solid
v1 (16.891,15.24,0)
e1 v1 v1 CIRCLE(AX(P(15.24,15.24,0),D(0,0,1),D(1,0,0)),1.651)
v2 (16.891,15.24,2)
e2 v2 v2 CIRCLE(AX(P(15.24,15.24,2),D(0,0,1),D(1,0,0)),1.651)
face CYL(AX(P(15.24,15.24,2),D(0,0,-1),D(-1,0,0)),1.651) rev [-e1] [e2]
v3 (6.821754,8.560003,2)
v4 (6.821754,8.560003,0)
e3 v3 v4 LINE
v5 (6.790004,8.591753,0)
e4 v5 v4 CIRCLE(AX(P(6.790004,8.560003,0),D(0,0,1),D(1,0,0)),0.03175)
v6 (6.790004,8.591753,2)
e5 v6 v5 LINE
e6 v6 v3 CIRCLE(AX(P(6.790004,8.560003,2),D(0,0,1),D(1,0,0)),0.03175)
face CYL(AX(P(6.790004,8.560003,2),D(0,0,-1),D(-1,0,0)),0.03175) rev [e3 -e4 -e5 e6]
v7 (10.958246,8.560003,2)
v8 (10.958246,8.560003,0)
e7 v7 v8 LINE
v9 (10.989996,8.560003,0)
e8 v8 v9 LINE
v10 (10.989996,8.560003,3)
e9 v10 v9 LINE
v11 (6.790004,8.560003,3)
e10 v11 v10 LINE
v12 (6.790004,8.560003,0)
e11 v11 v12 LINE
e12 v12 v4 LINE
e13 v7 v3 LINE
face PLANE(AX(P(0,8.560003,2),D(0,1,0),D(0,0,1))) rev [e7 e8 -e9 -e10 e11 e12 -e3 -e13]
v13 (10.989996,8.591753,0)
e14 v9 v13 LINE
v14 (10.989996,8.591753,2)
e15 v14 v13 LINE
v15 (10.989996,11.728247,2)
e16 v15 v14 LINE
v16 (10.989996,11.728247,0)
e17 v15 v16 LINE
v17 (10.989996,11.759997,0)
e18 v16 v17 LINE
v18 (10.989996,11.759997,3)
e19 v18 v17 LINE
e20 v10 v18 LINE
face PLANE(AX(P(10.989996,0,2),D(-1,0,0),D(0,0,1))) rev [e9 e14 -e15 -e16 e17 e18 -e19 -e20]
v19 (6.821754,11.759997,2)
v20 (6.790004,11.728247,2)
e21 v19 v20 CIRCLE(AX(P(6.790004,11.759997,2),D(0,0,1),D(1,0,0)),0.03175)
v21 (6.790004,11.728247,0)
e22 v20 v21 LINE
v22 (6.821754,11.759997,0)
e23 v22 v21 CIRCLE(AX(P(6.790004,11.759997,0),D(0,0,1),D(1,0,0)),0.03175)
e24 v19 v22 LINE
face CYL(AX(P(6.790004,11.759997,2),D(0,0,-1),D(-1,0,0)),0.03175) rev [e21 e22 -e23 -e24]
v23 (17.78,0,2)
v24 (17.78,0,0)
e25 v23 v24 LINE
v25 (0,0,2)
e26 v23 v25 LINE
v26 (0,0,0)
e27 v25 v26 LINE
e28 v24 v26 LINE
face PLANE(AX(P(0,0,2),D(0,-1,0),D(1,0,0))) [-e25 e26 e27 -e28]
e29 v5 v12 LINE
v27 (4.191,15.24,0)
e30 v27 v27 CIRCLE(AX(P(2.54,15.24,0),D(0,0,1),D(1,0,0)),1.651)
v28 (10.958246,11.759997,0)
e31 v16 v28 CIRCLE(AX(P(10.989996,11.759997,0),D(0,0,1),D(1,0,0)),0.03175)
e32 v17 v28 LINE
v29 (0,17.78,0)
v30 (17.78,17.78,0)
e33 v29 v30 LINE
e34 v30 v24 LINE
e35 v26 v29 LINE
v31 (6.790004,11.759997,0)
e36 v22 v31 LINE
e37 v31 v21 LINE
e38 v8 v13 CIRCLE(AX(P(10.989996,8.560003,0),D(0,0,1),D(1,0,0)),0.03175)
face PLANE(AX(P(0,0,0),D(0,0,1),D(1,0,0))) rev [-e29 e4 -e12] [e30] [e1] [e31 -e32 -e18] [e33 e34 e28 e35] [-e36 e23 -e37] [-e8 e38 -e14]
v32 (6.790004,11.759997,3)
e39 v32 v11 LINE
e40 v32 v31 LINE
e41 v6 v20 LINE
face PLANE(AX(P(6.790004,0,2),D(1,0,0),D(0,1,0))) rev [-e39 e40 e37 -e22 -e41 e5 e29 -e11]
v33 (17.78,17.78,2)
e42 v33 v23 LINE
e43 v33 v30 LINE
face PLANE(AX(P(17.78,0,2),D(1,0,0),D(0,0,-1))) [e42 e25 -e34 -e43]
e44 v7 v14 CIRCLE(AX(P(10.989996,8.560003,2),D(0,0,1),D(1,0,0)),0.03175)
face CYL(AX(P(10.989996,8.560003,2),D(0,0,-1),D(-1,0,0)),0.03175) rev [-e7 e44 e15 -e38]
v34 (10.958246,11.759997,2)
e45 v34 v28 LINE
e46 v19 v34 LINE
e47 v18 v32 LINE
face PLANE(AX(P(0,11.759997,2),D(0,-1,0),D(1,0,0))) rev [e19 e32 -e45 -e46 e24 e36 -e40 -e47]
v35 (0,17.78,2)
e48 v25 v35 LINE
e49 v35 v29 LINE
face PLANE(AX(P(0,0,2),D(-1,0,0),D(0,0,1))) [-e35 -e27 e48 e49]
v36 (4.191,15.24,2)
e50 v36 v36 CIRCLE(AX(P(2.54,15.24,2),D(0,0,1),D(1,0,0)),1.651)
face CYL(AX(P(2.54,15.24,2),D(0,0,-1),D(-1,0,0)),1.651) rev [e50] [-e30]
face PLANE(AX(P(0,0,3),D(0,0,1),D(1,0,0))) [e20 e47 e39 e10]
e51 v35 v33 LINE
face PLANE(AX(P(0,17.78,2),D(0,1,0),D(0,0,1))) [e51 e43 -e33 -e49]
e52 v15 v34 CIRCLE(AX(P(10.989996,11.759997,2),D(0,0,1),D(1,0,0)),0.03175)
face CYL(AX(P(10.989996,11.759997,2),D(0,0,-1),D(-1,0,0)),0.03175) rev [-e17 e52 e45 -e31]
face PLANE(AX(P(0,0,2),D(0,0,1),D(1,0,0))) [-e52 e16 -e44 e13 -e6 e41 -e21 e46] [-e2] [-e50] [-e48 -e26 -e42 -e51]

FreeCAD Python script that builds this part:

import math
import FreeCAD as App
import Part
import Sketcher

doc = App.newDocument("Part")
body = doc.addObject("PartDesign::Body", "Body")

# Sketch on XY plane
sketch1 = body.newObject("Sketcher::SketchObject", "Sketch")
sketch1.AttachmentSupport = (doc.getObject("XY_Plane"), [""])
sketch1.MapMode = "FlatFace"
sketch1.addGeometry(Part.LineSegment(App.Vector(0, 0, 0), App.Vector(17.78, 0, 0)), False)
sketch1.addGeometry(Part.LineSegment(App.Vector(17.78, 0, 0), App.Vector(17.78, 17.78, 0)), False)
sketch1.addGeometry(Part.LineSegment(App.Vector(17.78, 17.78, 0), App.Vector(0, 17.78, 0)), False)
sketch1.addGeometry(Part.LineSegment(App.Vector(0, 17.78, 0), App.Vector(0, 0, 0)), False)
sketch1.addGeometry(Part.ArcOfCircle(Part.Circle(App.Vector(10.99, 8.56, 0), App.Vector(0, 0, 1), 0.032), math.radians(-180), math.radians(-90)), False)
sketch1.addGeometry(Part.LineSegment(App.Vector(10.958, 8.56, 0), App.Vector(10.99, 8.56, 0)), False)
sketch1.addGeometry(Part.LineSegment(App.Vector(10.99, 8.56, 0), App.Vector(10.99, 8.592, 0)), False)
sketch1.addGeometry(Part.ArcOfCircle(Part.Circle(App.Vector(10.99, 8.56, 0), App.Vector(0, 0, 1), 0.032), math.radians(0), math.radians(90)), False)
sketch1.addGeometry(Part.ArcOfCircle(Part.Circle(App.Vector(10.99, 8.56, 0), App.Vector(0, 0, 1), 0.032), math.radians(-90), math.radians(0)), False)
sketch1.addGeometry(Part.ArcOfCircle(Part.Circle(App.Vector(6.79, 8.56, 0), App.Vector(0, 0, 1), 0.032), math.radians(-90), math.radians(0)), False)
sketch1.addGeometry(Part.ArcOfCircle(Part.Circle(App.Vector(6.79, 8.56, 0), App.Vector(0, 0, 1), 0.032), math.radians(-180), math.radians(-90)), False)
sketch1.addGeometry(Part.ArcOfCircle(Part.Circle(App.Vector(6.79, 8.56, 0), App.Vector(0, 0, 1), 0.032), math.radians(90), math.radians(180)), False)
sketch1.addGeometry(Part.LineSegment(App.Vector(6.79, 8.592, 0), App.Vector(6.79, 8.56, 0)), False)
sketch1.addGeometry(Part.LineSegment(App.Vector(6.79, 8.56, 0), App.Vector(6.822, 8.56, 0)), False)
sketch1.addGeometry(Part.ArcOfCircle(Part.Circle(App.Vector(10.99, 11.76, 0), App.Vector(0, 0, 1), 0.032), math.radians(-90), math.radians(0)), False)
sketch1.addGeometry(Part.LineSegment(App.Vector(10.99, 11.728, 0), App.Vector(10.99, 11.76, 0)), False)
sketch1.addGeometry(Part.LineSegment(App.Vector(10.99, 11.76, 0), App.Vector(10.958, 11.76, 0)), False)
sketch1.addGeometry(Part.ArcOfCircle(Part.Circle(App.Vector(10.99, 11.76, 0), App.Vector(0, 0, 1), 0.032), math.radians(90), math.radians(180)), False)
sketch1.addGeometry(Part.ArcOfCircle(Part.Circle(App.Vector(10.99, 11.76, 0), App.Vector(0, 0, 1), 0.032), math.radians(0), math.radians(90)), False)
sketch1.addGeometry(Part.ArcOfCircle(Part.Circle(App.Vector(6.79, 11.76, 0), App.Vector(0, 0, 1), 0.032), math.radians(-180), math.radians(-90)), False)
sketch1.addGeometry(Part.ArcOfCircle(Part.Circle(App.Vector(6.79, 11.76, 0), App.Vector(0, 0, 1), 0.032), math.radians(90), math.radians(180)), False)
sketch1.addGeometry(Part.ArcOfCircle(Part.Circle(App.Vector(6.79, 11.76, 0), App.Vector(0, 0, 1), 0.032), math.radians(0), math.radians(90)), False)
sketch1.addGeometry(Part.LineSegment(App.Vector(6.822, 11.76, 0), App.Vector(6.79, 11.76, 0)), False)
sketch1.addGeometry(Part.LineSegment(App.Vector(6.79, 11.76, 0), App.Vector(6.79, 11.728, 0)), False)
sketch1.addGeometry(Part.Circle(App.Vector(2.54, 15.24, 0), App.Vector(0, 0, 1), 1.651), False)
sketch1.addGeometry(Part.Circle(App.Vector(15.24, 15.24, 0), App.Vector(0, 0, 1), 1.651), False)
sketch1.addConstraint(Sketcher.Constraint("Coincident", 0, 2, 1, 1))
sketch1.addConstraint(Sketcher.Constraint("Coincident", 1, 2, 2, 1))
sketch1.addConstraint(Sketcher.Constraint("Coincident", 2, 2, 3, 1))
sketch1.addConstraint(Sketcher.Constraint("Coincident", 3, 2, 0, 1))
sketch1.addConstraint(Sketcher.Constraint("Coincident", 4, 1, 5, 1))
sketch1.addConstraint(Sketcher.Constraint("Coincident", 5, 2, 6, 1))
sketch1.addConstraint(Sketcher.Constraint("Coincident", 6, 2, 7, 2))
sketch1.addConstraint(Sketcher.Constraint("Tangent", 7, 1, 8, 2))
sketch1.addConstraint(Sketcher.Constraint("Tangent", 8, 1, 4, 2))
sketch1.addConstraint(Sketcher.Constraint("Tangent", 9, 1, 10, 2))
sketch1.addConstraint(Sketcher.Constraint("Tangent", 10, 1, 11, 2))
sketch1.addConstraint(Sketcher.Constraint("Coincident", 11, 1, 12, 1))
sketch1.addConstraint(Sketcher.Constraint("Coincident", 12, 2, 13, 1))
sketch1.addConstraint(Sketcher.Constraint("Coincident", 13, 2, 9, 2))
sketch1.addConstraint(Sketcher.Constraint("Coincident", 14, 1, 15, 1))
sketch1.addConstraint(Sketcher.Constraint("Coincident", 15, 2, 16, 1))
sketch1.addConstraint(Sketcher.Constraint("Coincident", 16, 2, 17, 2))
sketch1.addConstraint(Sketcher.Constraint("Tangent", 17, 1, 18, 2))
sketch1.addConstraint(Sketcher.Constraint("Tangent", 18, 1, 14, 2))
sketch1.addConstraint(Sketcher.Constraint("Tangent", 19, 1, 20, 2))
sketch1.addConstraint(Sketcher.Constraint("Tangent", 20, 1, 21, 2))
sketch1.addConstraint(Sketcher.Constraint("Coincident", 21, 1, 22, 1))
sketch1.addConstraint(Sketcher.Constraint("Coincident", 22, 2, 23, 1))
sketch1.addConstraint(Sketcher.Constraint("Coincident", 23, 2, 19, 2))
sketch1.addConstraint(Sketcher.Constraint("Horizontal", 0))
sketch1.addConstraint(Sketcher.Constraint("Vertical", 1))
sketch1.addConstraint(Sketcher.Constraint("Horizontal", 2))
sketch1.addConstraint(Sketcher.Constraint("Vertical", 3))
sketch1.addConstraint(Sketcher.Constraint("Horizontal", 5))
sketch1.addConstraint(Sketcher.Constraint("Vertical", 6))
sketch1.addConstraint(Sketcher.Constraint("Vertical", 12))
sketch1.addConstraint(Sketcher.Constraint("Horizontal", 13))
sketch1.addConstraint(Sketcher.Constraint("Vertical", 15))
sketch1.addConstraint(Sketcher.Constraint("Horizontal", 16))
sketch1.addConstraint(Sketcher.Constraint("Horizontal", 22))
sketch1.addConstraint(Sketcher.Constraint("Vertical", 23))
sketch1.addConstraint(Sketcher.Constraint("Coincident", 3, 2, -1, 1))
sketch1.addConstraint(Sketcher.Constraint("Coincident", 7, 3, 4, 3))
sketch1.addConstraint(Sketcher.Constraint("Coincident", 11, 3, 9, 3))
sketch1.addConstraint(Sketcher.Constraint("Coincident", 17, 3, 14, 3))
sketch1.addConstraint(Sketcher.Constraint("Coincident", 21, 3, 19, 3))
sketch1.addConstraint(Sketcher.Constraint("Coincident", 5, 2, 4, 3))
sketch1.addConstraint(Sketcher.Constraint("Coincident", 12, 2, 9, 3))
sketch1.addConstraint(Sketcher.Constraint("Coincident", 15, 2, 14, 3))
sketch1.addConstraint(Sketcher.Constraint("Coincident", 22, 2, 19, 3))
sketch1.addConstraint(Sketcher.Constraint("Equal", 8, 9))
sketch1.addConstraint(Sketcher.Constraint("Equal", 11, 14))
sketch1.addConstraint(Sketcher.Constraint("Equal", 18, 19))
sketch1.addConstraint(Sketcher.Constraint("Equal", 24, 25))
sketch1.addConstraint(Sketcher.Constraint("Horizontal", 8, 3, 9, 3))
sketch1.addConstraint(Sketcher.Constraint("Horizontal", 18, 3, 19, 3))
sketch1.addConstraint(Sketcher.Constraint("Horizontal", 24, 3, 25, 3))
sketch1.addConstraint(Sketcher.Constraint("Horizontal", 5, 2, 7, 1))
sketch1.addConstraint(Sketcher.Constraint("Horizontal", 7, 1, 10, 1))
sketch1.addConstraint(Sketcher.Constraint("Horizontal", 16, 2, 18, 1))
sketch1.addConstraint(Sketcher.Constraint("Horizontal", 18, 1, 19, 1))
sketch1.addConstraint(Sketcher.Constraint("Vertical", 8, 3, 14, 3))
sketch1.addConstraint(Sketcher.Constraint("Vertical", 11, 3, 19, 3))
sketch1.addConstraint(Sketcher.Constraint("Vertical", 6, 2, 8, 1))
sketch1.addConstraint(Sketcher.Constraint("Vertical", 21, 3, 9, 1))
sketch1.addConstraint(Sketcher.Constraint("Vertical", 15, 2, 17, 1))
sketch1.addConstraint(Sketcher.Constraint("Vertical", 12, 2, 20, 1))
sketch1.addConstraint(Sketcher.Constraint("Equal", 2, 1))
sketch1.addConstraint(Sketcher.Constraint("Diameter", 24, 3.302))
sketch1.addConstraint(Sketcher.Constraint("DistanceX", 0, 1, 0, 2, 17.78))
sketch1.addConstraint(Sketcher.Constraint("DistanceX", -1, 1, 24, 3, 2.54))
sketch1.addConstraint(Sketcher.Constraint("DistanceY", -1, 1, 24, 3, 15.24))
sketch1.addConstraint(Sketcher.Constraint("DistanceX", -1, 1, 25, 3, 15.24))
sketch1.addConstraint(Sketcher.Constraint("Radius", 4, 0.03175))
sketch1.addConstraint(Sketcher.Constraint("DistanceX", 9, 3, 7, 3, 4.199992))
sketch1.addConstraint(Sketcher.Constraint("DistanceX", -1, 1, 4, 3, 10.989996))
sketch1.addConstraint(Sketcher.Constraint("DistanceY", -1, 1, 4, 3, 8.560003))
sketch1.addConstraint(Sketcher.Constraint("DistanceY", -1, 1, 14, 3, 11.759997))
pad1 = body.newObject("PartDesign::Pad", "Pad")
pad1.Profile = sketch1
pad1.Length = 2

# Sketch on XY plane
sketch2 = body.newObject("Sketcher::SketchObject", "Sketch001")
sketch2.AttachmentSupport = (doc.getObject("XY_Plane"), [""])
sketch2.MapMode = "FlatFace"
sketch2.addGeometry(Part.LineSegment(App.Vector(6.8, 11.8, 0), App.Vector(6.8, 8.6, 0)), False)
sketch2.addGeometry(Part.LineSegment(App.Vector(6.8, 8.6, 0), App.Vector(11, 8.6, 0)), False)
sketch2.addGeometry(Part.LineSegment(App.Vector(11, 8.6, 0), App.Vector(11, 11.8, 0)), False)
sketch2.addGeometry(Part.LineSegment(App.Vector(11, 11.8, 0), App.Vector(6.8, 11.8, 0)), False)
sketch2.addConstraint(Sketcher.Constraint("Coincident", 0, 2, 1, 1))
sketch2.addConstraint(Sketcher.Constraint("Coincident", 1, 2, 2, 1))
sketch2.addConstraint(Sketcher.Constraint("Coincident", 2, 2, 3, 1))
sketch2.addConstraint(Sketcher.Constraint("Coincident", 3, 2, 0, 1))
sketch2.addConstraint(Sketcher.Constraint("Vertical", 0))
sketch2.addConstraint(Sketcher.Constraint("Horizontal", 1))
sketch2.addConstraint(Sketcher.Constraint("Vertical", 2))
sketch2.addConstraint(Sketcher.Constraint("Horizontal", 3))
sketch2.addConstraint(Sketcher.Constraint("DistanceX", 1, 1, 1, 2, 4.199992))
sketch2.addConstraint(Sketcher.Constraint("DistanceY", 0, 2, 0, 1, 3.199994))
sketch2.addConstraint(Sketcher.Constraint("DistanceX", -1, 1, 0, 2, 6.790004))
sketch2.addConstraint(Sketcher.Constraint("DistanceY", -1, 1, 0, 2, 8.560003))
pad2 = body.newObject("PartDesign::Pad", "Pad001")
pad2.Profile = sketch2
pad2.Length = 3

doc.recompute()
